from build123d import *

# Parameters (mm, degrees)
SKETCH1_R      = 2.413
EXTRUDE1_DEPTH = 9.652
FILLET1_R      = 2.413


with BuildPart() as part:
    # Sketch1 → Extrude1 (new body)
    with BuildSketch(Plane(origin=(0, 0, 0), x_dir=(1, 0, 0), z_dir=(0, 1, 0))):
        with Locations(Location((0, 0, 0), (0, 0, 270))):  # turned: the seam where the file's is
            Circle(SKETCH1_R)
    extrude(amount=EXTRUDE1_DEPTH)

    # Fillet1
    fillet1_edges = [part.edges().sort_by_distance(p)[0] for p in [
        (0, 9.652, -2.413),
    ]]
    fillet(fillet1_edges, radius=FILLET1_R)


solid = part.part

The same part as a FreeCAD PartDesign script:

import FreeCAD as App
import Part
import Sketcher
Q = App.Units.Quantity


def edges_at(feature, points):
    """Names of the edges that pass closest to the given points."""
    edges = feature.Shape.Edges
    near = lambda p: min(range(len(edges)), key=lambda i: edges[i].distToShape(Part.Vertex(*p))[0])
    return sorted({f"Edge{near(p) + 1}" for p in points})

doc = App.newDocument("Part")
body = doc.addObject("PartDesign::Body", "Body")

sketch1 = body.newObject("Sketcher::SketchObject", "Sketch")
sketch1.AttachmentSupport = (doc.getObject("XZ_Plane"), [""])
sketch1.MapMode = "FlatFace"
sketch1.addGeometry(Part.Circle(App.Vector(0, 0, 0), App.Vector(0, 0, 1), 2.413), False)
sketch1.addConstraint([
    Sketcher.Constraint("Coincident", 0, 3, -1, 1),
    Sketcher.Constraint("Diameter", 0, Q("0.19 in")),
])
pad1 = body.newObject("PartDesign::Pad", "Pad")
pad1.Profile = sketch1
pad1.Length = Q("0.38 in")
pad1.Reversed = True
doc.recompute()

fillet = body.newObject("PartDesign::Fillet", "Fillet")
fillet.Base = (pad1, edges_at(pad1, [(0, 9.652, -2.413)]))
fillet.Radius = Q("0.095 in")

doc.recompute()
